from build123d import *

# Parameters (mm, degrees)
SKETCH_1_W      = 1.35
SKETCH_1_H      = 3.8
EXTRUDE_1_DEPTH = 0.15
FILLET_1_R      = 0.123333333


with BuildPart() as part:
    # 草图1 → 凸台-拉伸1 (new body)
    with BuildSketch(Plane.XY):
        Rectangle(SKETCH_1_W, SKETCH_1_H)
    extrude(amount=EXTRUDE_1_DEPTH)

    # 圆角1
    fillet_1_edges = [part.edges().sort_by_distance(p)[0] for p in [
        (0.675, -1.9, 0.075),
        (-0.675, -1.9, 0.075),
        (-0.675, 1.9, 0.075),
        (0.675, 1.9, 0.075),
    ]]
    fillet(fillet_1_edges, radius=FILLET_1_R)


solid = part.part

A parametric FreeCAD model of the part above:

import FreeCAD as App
import Part
import Sketcher

V = App.Vector


def edges_at(feature, points):
    """Names of the edges that pass closest to the given points."""
    edges = feature.Shape.Edges
    near = lambda p: min(range(len(edges)), key=lambda i: edges[i].distToShape(Part.Vertex(*p))[0])
    return sorted({f"Edge{near(p) + 1}" for p in points})


def add_polygon(sketch, points):
    """Adds a closed chain of lines whose ends are joined by coincident constraints."""
    first, n = sketch.GeometryCount, len(points)
    for a, b in zip(points, points[1:] + points[:1]):
        sketch.addGeometry(Part.LineSegment(App.Vector(*a, 0), App.Vector(*b, 0)), False)
    for i in range(n):
        sketch.addConstraint(Sketcher.Constraint("Coincident", first + i, 2, first + (i + 1) % n, 1))

doc = App.newDocument("Part")
params = doc.addObject("Spreadsheet::Sheet", "Params")
for row, (alias, value) in enumerate([
    ("sketch1_height", "3.8 mm"),
    ("sketch1_width", "1.35 mm"),
    ("pad1_length", "0.15 mm"),
    ("fillet_radius", "0.123333 mm"),
], start=1):
    params.set(f"A{row}", alias)
    params.set(f"B{row}", "=" + value)
    params.setAlias(f"B{row}", alias)

body = doc.addObject("PartDesign::Body", "Body")

# Sketch on XY plane
sketch1 = body.newObject("Sketcher::SketchObject", "Sketch")
sketch1.AttachmentSupport = (doc.getObject("XY_Plane"), [""])
sketch1.MapMode = "FlatFace"
add_polygon(sketch1, [(-0.7, 1.9), (-0.7, -1.9), (0.7, -1.9), (0.7, 1.9)])  # lines 0-3
sketch1.addConstraint([
    Sketcher.Constraint("Vertical", 0),
    Sketcher.Constraint("Horizontal", 1),
    Sketcher.Constraint("Vertical", 2),
    Sketcher.Constraint("Horizontal", 3),
    Sketcher.Constraint("Symmetric", 0, 2, 2, 2, -1, 1),
    Sketcher.Constraint("DistanceY", 0, 2, 0, 1, 3.8),
    Sketcher.Constraint("DistanceX", 1, 1, 1, 2, 1.35),
])
sketch1.setExpression("Constraints[9]", "Params.sketch1_height")
sketch1.setExpression("Constraints[10]", "Params.sketch1_width")
pad1 = body.newObject("PartDesign::Pad", "Pad")
pad1.Profile = sketch1
pad1.setExpression("Length", "Params.pad1_length")
doc.recompute()

fillet = body.newObject("PartDesign::Fillet", "Fillet")
fillet.Base = (pad1, edges_at(pad1, [
    (0.675, -1.9, 0.075),
    (-0.675, -1.9, 0.075),
    (-0.675, 1.9, 0.075),
    (0.675, 1.9, 0.075),
]))
fillet.setExpression("Radius", "Params.fillet_radius")

doc.recompute()
